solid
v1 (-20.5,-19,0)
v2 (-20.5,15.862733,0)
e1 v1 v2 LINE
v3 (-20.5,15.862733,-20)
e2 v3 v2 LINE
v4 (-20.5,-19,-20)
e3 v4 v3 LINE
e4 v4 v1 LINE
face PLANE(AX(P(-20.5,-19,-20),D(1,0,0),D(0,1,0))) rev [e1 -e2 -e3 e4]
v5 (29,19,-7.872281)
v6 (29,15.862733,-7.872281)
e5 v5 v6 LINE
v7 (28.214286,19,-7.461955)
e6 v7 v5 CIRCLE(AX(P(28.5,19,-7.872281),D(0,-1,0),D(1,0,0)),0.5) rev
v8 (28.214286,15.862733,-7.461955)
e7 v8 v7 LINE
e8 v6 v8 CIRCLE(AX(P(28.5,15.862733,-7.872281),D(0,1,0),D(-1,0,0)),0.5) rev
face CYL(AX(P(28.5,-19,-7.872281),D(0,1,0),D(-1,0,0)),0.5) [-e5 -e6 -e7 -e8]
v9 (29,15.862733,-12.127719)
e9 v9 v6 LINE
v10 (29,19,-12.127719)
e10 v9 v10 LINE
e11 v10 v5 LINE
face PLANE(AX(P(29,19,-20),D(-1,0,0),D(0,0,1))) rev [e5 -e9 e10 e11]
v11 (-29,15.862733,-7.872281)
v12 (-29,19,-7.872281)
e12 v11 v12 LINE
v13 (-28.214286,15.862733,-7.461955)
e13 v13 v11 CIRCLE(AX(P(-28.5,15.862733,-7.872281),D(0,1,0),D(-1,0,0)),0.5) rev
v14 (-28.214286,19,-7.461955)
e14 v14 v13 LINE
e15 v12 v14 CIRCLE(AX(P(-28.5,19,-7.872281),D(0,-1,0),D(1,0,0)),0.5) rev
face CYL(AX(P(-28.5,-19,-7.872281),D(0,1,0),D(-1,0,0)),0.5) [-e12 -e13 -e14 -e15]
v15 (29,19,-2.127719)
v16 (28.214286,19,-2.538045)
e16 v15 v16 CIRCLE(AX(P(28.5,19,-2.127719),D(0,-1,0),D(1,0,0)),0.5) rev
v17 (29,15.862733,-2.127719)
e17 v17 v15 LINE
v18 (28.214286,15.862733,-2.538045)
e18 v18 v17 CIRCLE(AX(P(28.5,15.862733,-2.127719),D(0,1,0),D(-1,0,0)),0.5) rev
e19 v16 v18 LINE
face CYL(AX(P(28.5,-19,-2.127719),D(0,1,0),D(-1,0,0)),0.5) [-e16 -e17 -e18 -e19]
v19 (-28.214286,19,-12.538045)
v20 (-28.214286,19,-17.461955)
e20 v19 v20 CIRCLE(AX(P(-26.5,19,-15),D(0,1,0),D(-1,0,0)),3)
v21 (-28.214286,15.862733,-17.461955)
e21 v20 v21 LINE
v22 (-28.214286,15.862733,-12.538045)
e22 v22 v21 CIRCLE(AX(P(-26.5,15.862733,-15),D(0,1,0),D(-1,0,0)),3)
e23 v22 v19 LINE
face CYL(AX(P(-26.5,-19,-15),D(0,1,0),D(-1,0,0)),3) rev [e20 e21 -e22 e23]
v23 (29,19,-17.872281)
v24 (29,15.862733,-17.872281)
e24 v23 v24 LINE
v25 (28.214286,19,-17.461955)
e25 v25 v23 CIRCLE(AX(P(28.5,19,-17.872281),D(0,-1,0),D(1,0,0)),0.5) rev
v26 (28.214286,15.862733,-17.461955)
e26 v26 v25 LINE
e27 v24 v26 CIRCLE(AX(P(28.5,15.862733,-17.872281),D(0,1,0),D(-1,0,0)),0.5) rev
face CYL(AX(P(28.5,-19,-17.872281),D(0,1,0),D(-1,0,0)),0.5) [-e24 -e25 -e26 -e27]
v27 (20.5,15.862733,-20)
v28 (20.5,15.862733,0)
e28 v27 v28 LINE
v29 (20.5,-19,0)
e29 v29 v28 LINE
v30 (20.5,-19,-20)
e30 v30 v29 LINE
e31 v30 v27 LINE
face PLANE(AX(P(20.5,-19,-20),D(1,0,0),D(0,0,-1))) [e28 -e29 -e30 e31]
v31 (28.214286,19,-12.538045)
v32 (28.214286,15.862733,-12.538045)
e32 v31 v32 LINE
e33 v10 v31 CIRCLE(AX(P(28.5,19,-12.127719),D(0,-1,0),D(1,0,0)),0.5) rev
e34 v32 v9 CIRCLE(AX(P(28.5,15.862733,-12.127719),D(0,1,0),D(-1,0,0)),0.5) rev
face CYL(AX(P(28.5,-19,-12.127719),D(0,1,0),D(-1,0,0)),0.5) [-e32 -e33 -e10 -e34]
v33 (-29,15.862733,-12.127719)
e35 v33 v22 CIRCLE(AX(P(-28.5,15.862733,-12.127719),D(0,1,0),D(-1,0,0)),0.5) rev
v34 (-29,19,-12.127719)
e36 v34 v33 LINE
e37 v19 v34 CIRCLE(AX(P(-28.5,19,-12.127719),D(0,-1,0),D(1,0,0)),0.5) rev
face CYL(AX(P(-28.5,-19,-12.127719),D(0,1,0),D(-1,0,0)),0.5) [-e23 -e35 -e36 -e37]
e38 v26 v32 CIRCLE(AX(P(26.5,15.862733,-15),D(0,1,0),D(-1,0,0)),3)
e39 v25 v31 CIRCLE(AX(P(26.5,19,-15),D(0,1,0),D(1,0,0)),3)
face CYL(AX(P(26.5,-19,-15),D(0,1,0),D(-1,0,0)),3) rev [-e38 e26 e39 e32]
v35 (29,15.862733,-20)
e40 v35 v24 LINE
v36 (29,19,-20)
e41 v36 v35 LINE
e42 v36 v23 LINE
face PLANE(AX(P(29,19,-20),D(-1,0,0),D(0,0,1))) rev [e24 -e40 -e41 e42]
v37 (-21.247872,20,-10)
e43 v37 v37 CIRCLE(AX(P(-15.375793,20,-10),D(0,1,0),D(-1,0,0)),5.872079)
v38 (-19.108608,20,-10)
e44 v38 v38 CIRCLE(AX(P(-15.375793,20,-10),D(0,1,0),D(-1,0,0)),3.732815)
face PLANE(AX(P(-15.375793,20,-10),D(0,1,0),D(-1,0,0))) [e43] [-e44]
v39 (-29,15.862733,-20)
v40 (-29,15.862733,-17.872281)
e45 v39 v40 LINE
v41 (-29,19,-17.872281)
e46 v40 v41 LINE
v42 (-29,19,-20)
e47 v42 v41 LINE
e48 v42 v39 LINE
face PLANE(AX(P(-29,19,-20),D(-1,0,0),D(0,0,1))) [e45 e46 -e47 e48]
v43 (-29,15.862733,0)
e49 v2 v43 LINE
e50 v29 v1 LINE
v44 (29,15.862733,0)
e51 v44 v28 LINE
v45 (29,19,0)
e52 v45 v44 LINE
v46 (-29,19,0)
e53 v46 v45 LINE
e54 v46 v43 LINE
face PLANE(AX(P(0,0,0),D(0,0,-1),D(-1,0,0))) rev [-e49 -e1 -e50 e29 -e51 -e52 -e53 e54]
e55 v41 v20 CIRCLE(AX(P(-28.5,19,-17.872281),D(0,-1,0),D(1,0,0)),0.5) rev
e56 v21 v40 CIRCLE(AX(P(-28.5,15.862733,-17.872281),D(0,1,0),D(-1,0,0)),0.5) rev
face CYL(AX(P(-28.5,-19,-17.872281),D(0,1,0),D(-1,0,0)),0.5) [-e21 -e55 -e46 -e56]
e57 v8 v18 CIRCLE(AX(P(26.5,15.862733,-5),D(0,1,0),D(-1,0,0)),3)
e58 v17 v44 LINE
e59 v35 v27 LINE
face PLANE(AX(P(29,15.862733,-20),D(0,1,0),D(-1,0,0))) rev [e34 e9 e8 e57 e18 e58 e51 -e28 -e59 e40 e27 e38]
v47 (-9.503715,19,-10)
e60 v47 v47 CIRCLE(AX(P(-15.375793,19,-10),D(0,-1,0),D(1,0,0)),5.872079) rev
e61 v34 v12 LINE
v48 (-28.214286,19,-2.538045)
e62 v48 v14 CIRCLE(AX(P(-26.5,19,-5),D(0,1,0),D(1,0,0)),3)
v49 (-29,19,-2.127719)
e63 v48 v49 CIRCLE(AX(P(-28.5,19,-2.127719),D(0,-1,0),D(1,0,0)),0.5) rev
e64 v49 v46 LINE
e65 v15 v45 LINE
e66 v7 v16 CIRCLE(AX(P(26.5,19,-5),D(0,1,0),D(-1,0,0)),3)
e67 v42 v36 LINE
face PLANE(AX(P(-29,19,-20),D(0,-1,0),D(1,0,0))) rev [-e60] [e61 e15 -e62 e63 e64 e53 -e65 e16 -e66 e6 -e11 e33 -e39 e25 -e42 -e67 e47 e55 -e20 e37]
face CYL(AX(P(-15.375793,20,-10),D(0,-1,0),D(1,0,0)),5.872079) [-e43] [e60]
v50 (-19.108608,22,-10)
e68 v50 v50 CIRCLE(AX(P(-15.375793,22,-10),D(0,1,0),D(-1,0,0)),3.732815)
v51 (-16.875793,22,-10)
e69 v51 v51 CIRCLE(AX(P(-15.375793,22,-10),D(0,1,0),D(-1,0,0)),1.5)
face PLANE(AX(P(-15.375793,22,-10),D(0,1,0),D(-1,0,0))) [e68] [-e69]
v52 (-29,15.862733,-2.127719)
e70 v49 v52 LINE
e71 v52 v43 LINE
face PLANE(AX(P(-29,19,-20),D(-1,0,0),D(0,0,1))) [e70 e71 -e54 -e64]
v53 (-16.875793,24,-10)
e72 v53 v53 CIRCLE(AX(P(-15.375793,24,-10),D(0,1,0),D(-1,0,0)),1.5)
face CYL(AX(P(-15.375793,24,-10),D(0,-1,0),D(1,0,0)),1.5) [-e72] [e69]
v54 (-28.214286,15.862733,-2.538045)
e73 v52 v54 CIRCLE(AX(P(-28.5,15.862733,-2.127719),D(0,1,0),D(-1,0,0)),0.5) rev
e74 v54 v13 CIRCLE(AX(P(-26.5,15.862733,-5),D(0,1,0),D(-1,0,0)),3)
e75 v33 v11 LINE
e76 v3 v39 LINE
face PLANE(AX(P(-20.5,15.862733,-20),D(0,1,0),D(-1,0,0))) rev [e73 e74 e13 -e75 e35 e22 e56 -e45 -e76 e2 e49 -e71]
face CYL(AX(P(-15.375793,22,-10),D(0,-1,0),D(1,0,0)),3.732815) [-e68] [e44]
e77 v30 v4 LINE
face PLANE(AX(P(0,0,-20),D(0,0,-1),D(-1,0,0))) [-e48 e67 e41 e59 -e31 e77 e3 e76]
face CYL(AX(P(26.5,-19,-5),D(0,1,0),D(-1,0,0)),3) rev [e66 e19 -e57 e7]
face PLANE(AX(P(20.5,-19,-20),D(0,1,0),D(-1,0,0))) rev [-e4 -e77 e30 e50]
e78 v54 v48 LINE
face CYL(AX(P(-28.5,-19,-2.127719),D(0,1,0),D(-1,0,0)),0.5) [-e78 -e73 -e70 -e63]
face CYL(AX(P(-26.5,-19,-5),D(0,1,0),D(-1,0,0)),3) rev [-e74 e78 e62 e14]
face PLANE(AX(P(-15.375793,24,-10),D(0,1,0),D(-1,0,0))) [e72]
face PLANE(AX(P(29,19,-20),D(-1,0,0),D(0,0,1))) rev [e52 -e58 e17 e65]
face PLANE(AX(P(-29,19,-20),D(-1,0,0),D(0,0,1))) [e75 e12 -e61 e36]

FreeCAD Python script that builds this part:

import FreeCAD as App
import Part
import Sketcher


def edges_at(feature, points):
    """Names of the edges that pass closest to the given points."""
    edges = feature.Shape.Edges
    near = lambda p: min(range(len(edges)), key=lambda i: edges[i].distToShape(Part.Vertex(*p))[0])
    return sorted({f"Edge{near(p) + 1}" for p in points})


def add_polygon(sketch, points):
    """Adds a closed chain of lines whose ends are joined by coincident constraints."""
    first, n = sketch.GeometryCount, len(points)
    for a, b in zip(points, points[1:] + points[:1]):
        sketch.addGeometry(Part.LineSegment(App.Vector(*a, 0), App.Vector(*b, 0)), False)
    for i in range(n):
        sketch.addConstraint(Sketcher.Constraint("Coincident", first + i, 2, first + (i + 1) % n, 1))

doc = App.newDocument("Part")
body = doc.addObject("PartDesign::Body", "Body")

sketch1 = body.newObject("Sketcher::SketchObject", "Sketch")
sketch1.AttachmentSupport = (doc.getObject("XY_Plane"), [""])
sketch1.MapMode = "FlatFace"
add_polygon(sketch1, [(29, 19), (-29, 19), (-29, 15.862733), (-20.5, 15.862733), (-20.5, -19), (20.5, -19), (20.5, 15.862733), (29, 15.862733)])
sketch1.addConstraint([
    Sketcher.Constraint("Horizontal", 0),
    Sketcher.Constraint("Vertical", 1),
    Sketcher.Constraint("Horizontal", 2),
    Sketcher.Constraint("Vertical", 3),
    Sketcher.Constraint("Horizontal", 4),
    Sketcher.Constraint("Vertical", 5),
    Sketcher.Constraint("Horizontal", 6),
    Sketcher.Constraint("Vertical", 7),
    Sketcher.Constraint("Symmetric", 2, 2, 5, 2, -2),
    Sketcher.Constraint("Equal", 2, 6),
    Sketcher.Constraint("DistanceX", 0, 2, 0, 1, 58.0),
    Sketcher.Constraint("DistanceX", 4, 1, 4, 2, 41.0),
    Sketcher.Constraint("DistanceY", -1, 1, 0, 2, 19.0),
    Sketcher.Constraint("DistanceY", 3, 2, -1, 1, 19.0),
    Sketcher.Constraint("DistanceY", 1, 2, 1, 1, 3.137267),
])
pad1 = body.newObject("PartDesign::Pad", "Pad")
pad1.Profile = sketch1
pad1.Length = 20
pad1.Reversed = True

sketch2 = body.newObject("Sketcher::SketchObject", "Sketch001")
sketch2.AttachmentSupport = (doc.getObject("XZ_Plane"), [""])
sketch2.MapMode = "FlatFace"
sketch2.AttachmentOffset = App.Placement(App.Vector(0, 0, -19), App.Rotation())
sketch2.addGeometry([
    Part.Circle(App.Vector(26.5, -5, 0), App.Vector(0, 0, 1), 3),
    Part.Circle(App.Vector(26.5, -15, 0), App.Vector(0, 0, 1), 3),
    Part.Circle(App.Vector(-26.5, -5, 0), App.Vector(0, 0, 1), 3),
    Part.Circle(App.Vector(-26.5, -15, 0), App.Vector(0, 0, 1), 3),
], False)
sketch2.addConstraint([
    Sketcher.Constraint("Equal", 0, 1),
    Sketcher.Constraint("Equal", 1, 2),
    Sketcher.Constraint("Equal", 2, 3),
    Sketcher.Constraint("Symmetric", 0, 3, 2, 3, -2),
    Sketcher.Constraint("Symmetric", 1, 3, 3, 3, -2),
    Sketcher.Constraint("Vertical", 0, 3, 1, 3),
    Sketcher.Constraint("Diameter", 0, 6.0),
    Sketcher.Constraint("DistanceY", 0, 3, -1, 1, 5.0),
    Sketcher.Constraint("DistanceY", 1, 3, -1, 1, 15.0),
    Sketcher.Constraint("DistanceX", 2, 3, 0, 3, 53.0),
])
pocket1 = body.newObject("PartDesign::Pocket", "Pocket")
pocket1.Profile = sketch2
pocket1.Type = "ThroughAll"
pocket1.Reversed = True
doc.recompute()

fillet = body.newObject("PartDesign::Fillet", "Fillet")
fillet.Base = (pocket1, edges_at(pocket1, [
    (29, 17.431, -3.342),
    (29, 17.431, -6.658),
    (29, 17.431, -13.342),
    (29, 17.431, -16.658),
    (-29, 17.431, -3.342),
    (-29, 17.431, -6.658),
    (-29, 17.431, -13.342),
    (-29, 17.431, -16.658),
]))
fillet.Radius = 0.5

sketch3 = body.newObject("Sketcher::SketchObject", "Sketch002")
sketch3.AttachmentSupport = (doc.getObject("XZ_Plane"), [""])
sketch3.MapMode = "FlatFace"
sketch3.AttachmentOffset = App.Placement(App.Vector(0, 0, -19), App.Rotation())
sketch3.addGeometry(Part.Circle(App.Vector(-15.375793, -10, 0), App.Vector(0, 0, 1), 5.872079), False)
sketch3.addConstraint([
    Sketcher.Constraint("DistanceY", 0, 3, -1, 1, 10.0),
    Sketcher.Constraint("Diameter", 0, 11.744157),
    Sketcher.Constraint("DistanceX", 0, 3, -1, 1, 15.375793),
])
pad2 = body.newObject("PartDesign::Pad", "Pad001")
pad2.Profile = sketch3
pad2.Length = 1
pad2.Reversed = True

sketch4 = body.newObject("Sketcher::SketchObject", "Sketch003")
sketch4.AttachmentSupport = (doc.getObject("XZ_Plane"), [""])
sketch4.MapMode = "FlatFace"
sketch4.AttachmentOffset = App.Placement(App.Vector(0, 0, -20), App.Rotation())
sketch4.addGeometry(Part.Circle(App.Vector(-15.375793, -10, 0), App.Vector(0, 0, 1), 3.732815), False)
sketch4.addConstraint([
    Sketcher.Constraint("DistanceY", 0, 3, -1, 1, 10.0),
    Sketcher.Constraint("Diameter", 0, 7.46563),
    Sketcher.Constraint("DistanceX", 0, 3, -1, 1, 15.375793),
])
pad3 = body.newObject("PartDesign::Pad", "Pad002")
pad3.Profile = sketch4
pad3.Length = 2
pad3.Reversed = True

sketch5 = body.newObject("Sketcher::SketchObject", "Sketch004")
sketch5.AttachmentSupport = (doc.getObject("XZ_Plane"), [""])
sketch5.MapMode = "FlatFace"
sketch5.AttachmentOffset = App.Placement(App.Vector(0, 0, -22), App.Rotation())
sketch5.addGeometry(Part.Circle(App.Vector(-15.375793, -10, 0), App.Vector(0, 0, 1), 1.5), False)
sketch5.addConstraint([
    Sketcher.Constraint("Diameter", 0, 3.0),
    Sketcher.Constraint("DistanceY", 0, 3, -1, 1, 10.0),
    Sketcher.Constraint("DistanceX", 0, 3, -1, 1, 15.375793),
])
pad4 = body.newObject("PartDesign::Pad", "Pad003")
pad4.Profile = sketch5
pad4.Length = 2
pad4.Reversed = True

doc.recompute()
